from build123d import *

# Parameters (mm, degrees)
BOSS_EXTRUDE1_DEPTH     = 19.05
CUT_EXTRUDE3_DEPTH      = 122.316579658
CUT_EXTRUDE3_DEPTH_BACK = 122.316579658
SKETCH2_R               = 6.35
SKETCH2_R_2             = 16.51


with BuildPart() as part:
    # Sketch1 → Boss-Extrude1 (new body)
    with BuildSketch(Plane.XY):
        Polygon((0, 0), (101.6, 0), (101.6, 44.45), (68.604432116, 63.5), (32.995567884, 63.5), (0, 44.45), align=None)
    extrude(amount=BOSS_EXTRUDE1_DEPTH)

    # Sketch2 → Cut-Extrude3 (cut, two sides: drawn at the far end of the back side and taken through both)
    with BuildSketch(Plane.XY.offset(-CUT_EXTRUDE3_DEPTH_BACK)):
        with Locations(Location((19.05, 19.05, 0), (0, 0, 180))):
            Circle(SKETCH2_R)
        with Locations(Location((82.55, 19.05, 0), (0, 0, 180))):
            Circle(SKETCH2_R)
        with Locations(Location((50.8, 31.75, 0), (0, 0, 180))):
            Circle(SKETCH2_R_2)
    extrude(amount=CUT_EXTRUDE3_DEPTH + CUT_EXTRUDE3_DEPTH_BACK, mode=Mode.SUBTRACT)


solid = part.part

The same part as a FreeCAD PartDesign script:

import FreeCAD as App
import Part
import Sketcher
Q = App.Units.Quantity


def add_polygon(sketch, points):
    """Adds a closed chain of lines whose ends are joined by coincident constraints."""
    first, n = sketch.GeometryCount, len(points)
    for a, b in zip(points, points[1:] + points[:1]):
        sketch.addGeometry(Part.LineSegment(App.Vector(*a, 0), App.Vector(*b, 0)), False)
    for i in range(n):
        sketch.addConstraint(Sketcher.Constraint("Coincident", first + i, 2, first + (i + 1) % n, 1))

doc = App.newDocument("Part")
body = doc.addObject("PartDesign::Body", "Body")

# Sketch on XY plane
sketch1 = body.newObject("Sketcher::SketchObject", "Sketch")
sketch1.AttachmentSupport = (doc.getObject("XY_Plane"), [""])
sketch1.MapMode = "FlatFace"
add_polygon(sketch1, [(0, 0), (102, 0), (102, 44), (69, 64), (33, 64), (0, 44)])  # lines 0-5
sketch1.addConstraint(Sketcher.Constraint("Horizontal", 0))
sketch1.addConstraint(Sketcher.Constraint("Vertical", 1))
sketch1.addConstraint(Sketcher.Constraint("Horizontal", 3))
sketch1.addConstraint(Sketcher.Constraint("Vertical", 5))
sketch1.addConstraint(Sketcher.Constraint("Coincident", 5, 2, -1, 1))
sketch1.addConstraint(Sketcher.Constraint("Horizontal", 1, 2, 4, 2))
sketch1.addConstraint(Sketcher.Constraint("Equal", 2, 4))
sketch1.addConstraint(Sketcher.Constraint("DistanceX", 0, 1, 0, 2, Q("4 in")))
sketch1.addConstraint(Sketcher.Constraint("Angle", 2, Q("150 deg")))
sketch1.addConstraint(Sketcher.Constraint("Distance", 2, Q("1.5 in")))
sketch1.addConstraint(Sketcher.Constraint("DistanceY", 1, 1, 1, 2, Q("1.75 in")))
pad1 = body.newObject("PartDesign::Pad", "Pad")
pad1.Profile = sketch1
pad1.Length = Q("0.75 in")

# Sketch on XY plane
sketch2 = body.newObject("Sketcher::SketchObject", "Sketch001")
sketch2.AttachmentSupport = (doc.getObject("XY_Plane"), [""])
sketch2.MapMode = "FlatFace"
sketch2.addGeometry(Part.Circle(App.Vector(19, 19, 0), App.Vector(0, 0, 1), 6), False)
sketch2.addGeometry(Part.Circle(App.Vector(83, 19, 0), App.Vector(0, 0, 1), 6), False)
sketch2.addGeometry(Part.Circle(App.Vector(51, 32, 0), App.Vector(0, 0, 1), 17), False)
sketch2.addConstraint(Sketcher.Constraint("Equal", 0, 1))
sketch2.addConstraint(Sketcher.Constraint("Horizontal", 0, 3, 1, 3))
sketch2.addConstraint(Sketcher.Constraint("Diameter", 0, Q("0.5 in")))
sketch2.addConstraint(Sketcher.Constraint("Diameter", 2, Q("1.3 in")))
sketch2.addConstraint(Sketcher.Constraint("DistanceX", -1, 1, 2, 3, Q("2 in")))
sketch2.addConstraint(Sketcher.Constraint("DistanceX", 0, 3, 1, 3, Q("2.5 in")))
sketch2.addConstraint(Sketcher.Constraint("DistanceY", 0, 3, 2, 3, Q("0.5 in")))
sketch2.addConstraint(Sketcher.Constraint("DistanceX", -1, 1, 0, 3, Q("0.75 in")))
sketch2.addConstraint(Sketcher.Constraint("DistanceY", -1, 1, 0, 3, Q("0.75 in")))
pocket1 = body.newObject("PartDesign::Pocket", "Pocket")
pocket1.Profile = sketch2
pocket1.Type = "ThroughAll"
pocket1.Midplane = True

doc.recompute()
